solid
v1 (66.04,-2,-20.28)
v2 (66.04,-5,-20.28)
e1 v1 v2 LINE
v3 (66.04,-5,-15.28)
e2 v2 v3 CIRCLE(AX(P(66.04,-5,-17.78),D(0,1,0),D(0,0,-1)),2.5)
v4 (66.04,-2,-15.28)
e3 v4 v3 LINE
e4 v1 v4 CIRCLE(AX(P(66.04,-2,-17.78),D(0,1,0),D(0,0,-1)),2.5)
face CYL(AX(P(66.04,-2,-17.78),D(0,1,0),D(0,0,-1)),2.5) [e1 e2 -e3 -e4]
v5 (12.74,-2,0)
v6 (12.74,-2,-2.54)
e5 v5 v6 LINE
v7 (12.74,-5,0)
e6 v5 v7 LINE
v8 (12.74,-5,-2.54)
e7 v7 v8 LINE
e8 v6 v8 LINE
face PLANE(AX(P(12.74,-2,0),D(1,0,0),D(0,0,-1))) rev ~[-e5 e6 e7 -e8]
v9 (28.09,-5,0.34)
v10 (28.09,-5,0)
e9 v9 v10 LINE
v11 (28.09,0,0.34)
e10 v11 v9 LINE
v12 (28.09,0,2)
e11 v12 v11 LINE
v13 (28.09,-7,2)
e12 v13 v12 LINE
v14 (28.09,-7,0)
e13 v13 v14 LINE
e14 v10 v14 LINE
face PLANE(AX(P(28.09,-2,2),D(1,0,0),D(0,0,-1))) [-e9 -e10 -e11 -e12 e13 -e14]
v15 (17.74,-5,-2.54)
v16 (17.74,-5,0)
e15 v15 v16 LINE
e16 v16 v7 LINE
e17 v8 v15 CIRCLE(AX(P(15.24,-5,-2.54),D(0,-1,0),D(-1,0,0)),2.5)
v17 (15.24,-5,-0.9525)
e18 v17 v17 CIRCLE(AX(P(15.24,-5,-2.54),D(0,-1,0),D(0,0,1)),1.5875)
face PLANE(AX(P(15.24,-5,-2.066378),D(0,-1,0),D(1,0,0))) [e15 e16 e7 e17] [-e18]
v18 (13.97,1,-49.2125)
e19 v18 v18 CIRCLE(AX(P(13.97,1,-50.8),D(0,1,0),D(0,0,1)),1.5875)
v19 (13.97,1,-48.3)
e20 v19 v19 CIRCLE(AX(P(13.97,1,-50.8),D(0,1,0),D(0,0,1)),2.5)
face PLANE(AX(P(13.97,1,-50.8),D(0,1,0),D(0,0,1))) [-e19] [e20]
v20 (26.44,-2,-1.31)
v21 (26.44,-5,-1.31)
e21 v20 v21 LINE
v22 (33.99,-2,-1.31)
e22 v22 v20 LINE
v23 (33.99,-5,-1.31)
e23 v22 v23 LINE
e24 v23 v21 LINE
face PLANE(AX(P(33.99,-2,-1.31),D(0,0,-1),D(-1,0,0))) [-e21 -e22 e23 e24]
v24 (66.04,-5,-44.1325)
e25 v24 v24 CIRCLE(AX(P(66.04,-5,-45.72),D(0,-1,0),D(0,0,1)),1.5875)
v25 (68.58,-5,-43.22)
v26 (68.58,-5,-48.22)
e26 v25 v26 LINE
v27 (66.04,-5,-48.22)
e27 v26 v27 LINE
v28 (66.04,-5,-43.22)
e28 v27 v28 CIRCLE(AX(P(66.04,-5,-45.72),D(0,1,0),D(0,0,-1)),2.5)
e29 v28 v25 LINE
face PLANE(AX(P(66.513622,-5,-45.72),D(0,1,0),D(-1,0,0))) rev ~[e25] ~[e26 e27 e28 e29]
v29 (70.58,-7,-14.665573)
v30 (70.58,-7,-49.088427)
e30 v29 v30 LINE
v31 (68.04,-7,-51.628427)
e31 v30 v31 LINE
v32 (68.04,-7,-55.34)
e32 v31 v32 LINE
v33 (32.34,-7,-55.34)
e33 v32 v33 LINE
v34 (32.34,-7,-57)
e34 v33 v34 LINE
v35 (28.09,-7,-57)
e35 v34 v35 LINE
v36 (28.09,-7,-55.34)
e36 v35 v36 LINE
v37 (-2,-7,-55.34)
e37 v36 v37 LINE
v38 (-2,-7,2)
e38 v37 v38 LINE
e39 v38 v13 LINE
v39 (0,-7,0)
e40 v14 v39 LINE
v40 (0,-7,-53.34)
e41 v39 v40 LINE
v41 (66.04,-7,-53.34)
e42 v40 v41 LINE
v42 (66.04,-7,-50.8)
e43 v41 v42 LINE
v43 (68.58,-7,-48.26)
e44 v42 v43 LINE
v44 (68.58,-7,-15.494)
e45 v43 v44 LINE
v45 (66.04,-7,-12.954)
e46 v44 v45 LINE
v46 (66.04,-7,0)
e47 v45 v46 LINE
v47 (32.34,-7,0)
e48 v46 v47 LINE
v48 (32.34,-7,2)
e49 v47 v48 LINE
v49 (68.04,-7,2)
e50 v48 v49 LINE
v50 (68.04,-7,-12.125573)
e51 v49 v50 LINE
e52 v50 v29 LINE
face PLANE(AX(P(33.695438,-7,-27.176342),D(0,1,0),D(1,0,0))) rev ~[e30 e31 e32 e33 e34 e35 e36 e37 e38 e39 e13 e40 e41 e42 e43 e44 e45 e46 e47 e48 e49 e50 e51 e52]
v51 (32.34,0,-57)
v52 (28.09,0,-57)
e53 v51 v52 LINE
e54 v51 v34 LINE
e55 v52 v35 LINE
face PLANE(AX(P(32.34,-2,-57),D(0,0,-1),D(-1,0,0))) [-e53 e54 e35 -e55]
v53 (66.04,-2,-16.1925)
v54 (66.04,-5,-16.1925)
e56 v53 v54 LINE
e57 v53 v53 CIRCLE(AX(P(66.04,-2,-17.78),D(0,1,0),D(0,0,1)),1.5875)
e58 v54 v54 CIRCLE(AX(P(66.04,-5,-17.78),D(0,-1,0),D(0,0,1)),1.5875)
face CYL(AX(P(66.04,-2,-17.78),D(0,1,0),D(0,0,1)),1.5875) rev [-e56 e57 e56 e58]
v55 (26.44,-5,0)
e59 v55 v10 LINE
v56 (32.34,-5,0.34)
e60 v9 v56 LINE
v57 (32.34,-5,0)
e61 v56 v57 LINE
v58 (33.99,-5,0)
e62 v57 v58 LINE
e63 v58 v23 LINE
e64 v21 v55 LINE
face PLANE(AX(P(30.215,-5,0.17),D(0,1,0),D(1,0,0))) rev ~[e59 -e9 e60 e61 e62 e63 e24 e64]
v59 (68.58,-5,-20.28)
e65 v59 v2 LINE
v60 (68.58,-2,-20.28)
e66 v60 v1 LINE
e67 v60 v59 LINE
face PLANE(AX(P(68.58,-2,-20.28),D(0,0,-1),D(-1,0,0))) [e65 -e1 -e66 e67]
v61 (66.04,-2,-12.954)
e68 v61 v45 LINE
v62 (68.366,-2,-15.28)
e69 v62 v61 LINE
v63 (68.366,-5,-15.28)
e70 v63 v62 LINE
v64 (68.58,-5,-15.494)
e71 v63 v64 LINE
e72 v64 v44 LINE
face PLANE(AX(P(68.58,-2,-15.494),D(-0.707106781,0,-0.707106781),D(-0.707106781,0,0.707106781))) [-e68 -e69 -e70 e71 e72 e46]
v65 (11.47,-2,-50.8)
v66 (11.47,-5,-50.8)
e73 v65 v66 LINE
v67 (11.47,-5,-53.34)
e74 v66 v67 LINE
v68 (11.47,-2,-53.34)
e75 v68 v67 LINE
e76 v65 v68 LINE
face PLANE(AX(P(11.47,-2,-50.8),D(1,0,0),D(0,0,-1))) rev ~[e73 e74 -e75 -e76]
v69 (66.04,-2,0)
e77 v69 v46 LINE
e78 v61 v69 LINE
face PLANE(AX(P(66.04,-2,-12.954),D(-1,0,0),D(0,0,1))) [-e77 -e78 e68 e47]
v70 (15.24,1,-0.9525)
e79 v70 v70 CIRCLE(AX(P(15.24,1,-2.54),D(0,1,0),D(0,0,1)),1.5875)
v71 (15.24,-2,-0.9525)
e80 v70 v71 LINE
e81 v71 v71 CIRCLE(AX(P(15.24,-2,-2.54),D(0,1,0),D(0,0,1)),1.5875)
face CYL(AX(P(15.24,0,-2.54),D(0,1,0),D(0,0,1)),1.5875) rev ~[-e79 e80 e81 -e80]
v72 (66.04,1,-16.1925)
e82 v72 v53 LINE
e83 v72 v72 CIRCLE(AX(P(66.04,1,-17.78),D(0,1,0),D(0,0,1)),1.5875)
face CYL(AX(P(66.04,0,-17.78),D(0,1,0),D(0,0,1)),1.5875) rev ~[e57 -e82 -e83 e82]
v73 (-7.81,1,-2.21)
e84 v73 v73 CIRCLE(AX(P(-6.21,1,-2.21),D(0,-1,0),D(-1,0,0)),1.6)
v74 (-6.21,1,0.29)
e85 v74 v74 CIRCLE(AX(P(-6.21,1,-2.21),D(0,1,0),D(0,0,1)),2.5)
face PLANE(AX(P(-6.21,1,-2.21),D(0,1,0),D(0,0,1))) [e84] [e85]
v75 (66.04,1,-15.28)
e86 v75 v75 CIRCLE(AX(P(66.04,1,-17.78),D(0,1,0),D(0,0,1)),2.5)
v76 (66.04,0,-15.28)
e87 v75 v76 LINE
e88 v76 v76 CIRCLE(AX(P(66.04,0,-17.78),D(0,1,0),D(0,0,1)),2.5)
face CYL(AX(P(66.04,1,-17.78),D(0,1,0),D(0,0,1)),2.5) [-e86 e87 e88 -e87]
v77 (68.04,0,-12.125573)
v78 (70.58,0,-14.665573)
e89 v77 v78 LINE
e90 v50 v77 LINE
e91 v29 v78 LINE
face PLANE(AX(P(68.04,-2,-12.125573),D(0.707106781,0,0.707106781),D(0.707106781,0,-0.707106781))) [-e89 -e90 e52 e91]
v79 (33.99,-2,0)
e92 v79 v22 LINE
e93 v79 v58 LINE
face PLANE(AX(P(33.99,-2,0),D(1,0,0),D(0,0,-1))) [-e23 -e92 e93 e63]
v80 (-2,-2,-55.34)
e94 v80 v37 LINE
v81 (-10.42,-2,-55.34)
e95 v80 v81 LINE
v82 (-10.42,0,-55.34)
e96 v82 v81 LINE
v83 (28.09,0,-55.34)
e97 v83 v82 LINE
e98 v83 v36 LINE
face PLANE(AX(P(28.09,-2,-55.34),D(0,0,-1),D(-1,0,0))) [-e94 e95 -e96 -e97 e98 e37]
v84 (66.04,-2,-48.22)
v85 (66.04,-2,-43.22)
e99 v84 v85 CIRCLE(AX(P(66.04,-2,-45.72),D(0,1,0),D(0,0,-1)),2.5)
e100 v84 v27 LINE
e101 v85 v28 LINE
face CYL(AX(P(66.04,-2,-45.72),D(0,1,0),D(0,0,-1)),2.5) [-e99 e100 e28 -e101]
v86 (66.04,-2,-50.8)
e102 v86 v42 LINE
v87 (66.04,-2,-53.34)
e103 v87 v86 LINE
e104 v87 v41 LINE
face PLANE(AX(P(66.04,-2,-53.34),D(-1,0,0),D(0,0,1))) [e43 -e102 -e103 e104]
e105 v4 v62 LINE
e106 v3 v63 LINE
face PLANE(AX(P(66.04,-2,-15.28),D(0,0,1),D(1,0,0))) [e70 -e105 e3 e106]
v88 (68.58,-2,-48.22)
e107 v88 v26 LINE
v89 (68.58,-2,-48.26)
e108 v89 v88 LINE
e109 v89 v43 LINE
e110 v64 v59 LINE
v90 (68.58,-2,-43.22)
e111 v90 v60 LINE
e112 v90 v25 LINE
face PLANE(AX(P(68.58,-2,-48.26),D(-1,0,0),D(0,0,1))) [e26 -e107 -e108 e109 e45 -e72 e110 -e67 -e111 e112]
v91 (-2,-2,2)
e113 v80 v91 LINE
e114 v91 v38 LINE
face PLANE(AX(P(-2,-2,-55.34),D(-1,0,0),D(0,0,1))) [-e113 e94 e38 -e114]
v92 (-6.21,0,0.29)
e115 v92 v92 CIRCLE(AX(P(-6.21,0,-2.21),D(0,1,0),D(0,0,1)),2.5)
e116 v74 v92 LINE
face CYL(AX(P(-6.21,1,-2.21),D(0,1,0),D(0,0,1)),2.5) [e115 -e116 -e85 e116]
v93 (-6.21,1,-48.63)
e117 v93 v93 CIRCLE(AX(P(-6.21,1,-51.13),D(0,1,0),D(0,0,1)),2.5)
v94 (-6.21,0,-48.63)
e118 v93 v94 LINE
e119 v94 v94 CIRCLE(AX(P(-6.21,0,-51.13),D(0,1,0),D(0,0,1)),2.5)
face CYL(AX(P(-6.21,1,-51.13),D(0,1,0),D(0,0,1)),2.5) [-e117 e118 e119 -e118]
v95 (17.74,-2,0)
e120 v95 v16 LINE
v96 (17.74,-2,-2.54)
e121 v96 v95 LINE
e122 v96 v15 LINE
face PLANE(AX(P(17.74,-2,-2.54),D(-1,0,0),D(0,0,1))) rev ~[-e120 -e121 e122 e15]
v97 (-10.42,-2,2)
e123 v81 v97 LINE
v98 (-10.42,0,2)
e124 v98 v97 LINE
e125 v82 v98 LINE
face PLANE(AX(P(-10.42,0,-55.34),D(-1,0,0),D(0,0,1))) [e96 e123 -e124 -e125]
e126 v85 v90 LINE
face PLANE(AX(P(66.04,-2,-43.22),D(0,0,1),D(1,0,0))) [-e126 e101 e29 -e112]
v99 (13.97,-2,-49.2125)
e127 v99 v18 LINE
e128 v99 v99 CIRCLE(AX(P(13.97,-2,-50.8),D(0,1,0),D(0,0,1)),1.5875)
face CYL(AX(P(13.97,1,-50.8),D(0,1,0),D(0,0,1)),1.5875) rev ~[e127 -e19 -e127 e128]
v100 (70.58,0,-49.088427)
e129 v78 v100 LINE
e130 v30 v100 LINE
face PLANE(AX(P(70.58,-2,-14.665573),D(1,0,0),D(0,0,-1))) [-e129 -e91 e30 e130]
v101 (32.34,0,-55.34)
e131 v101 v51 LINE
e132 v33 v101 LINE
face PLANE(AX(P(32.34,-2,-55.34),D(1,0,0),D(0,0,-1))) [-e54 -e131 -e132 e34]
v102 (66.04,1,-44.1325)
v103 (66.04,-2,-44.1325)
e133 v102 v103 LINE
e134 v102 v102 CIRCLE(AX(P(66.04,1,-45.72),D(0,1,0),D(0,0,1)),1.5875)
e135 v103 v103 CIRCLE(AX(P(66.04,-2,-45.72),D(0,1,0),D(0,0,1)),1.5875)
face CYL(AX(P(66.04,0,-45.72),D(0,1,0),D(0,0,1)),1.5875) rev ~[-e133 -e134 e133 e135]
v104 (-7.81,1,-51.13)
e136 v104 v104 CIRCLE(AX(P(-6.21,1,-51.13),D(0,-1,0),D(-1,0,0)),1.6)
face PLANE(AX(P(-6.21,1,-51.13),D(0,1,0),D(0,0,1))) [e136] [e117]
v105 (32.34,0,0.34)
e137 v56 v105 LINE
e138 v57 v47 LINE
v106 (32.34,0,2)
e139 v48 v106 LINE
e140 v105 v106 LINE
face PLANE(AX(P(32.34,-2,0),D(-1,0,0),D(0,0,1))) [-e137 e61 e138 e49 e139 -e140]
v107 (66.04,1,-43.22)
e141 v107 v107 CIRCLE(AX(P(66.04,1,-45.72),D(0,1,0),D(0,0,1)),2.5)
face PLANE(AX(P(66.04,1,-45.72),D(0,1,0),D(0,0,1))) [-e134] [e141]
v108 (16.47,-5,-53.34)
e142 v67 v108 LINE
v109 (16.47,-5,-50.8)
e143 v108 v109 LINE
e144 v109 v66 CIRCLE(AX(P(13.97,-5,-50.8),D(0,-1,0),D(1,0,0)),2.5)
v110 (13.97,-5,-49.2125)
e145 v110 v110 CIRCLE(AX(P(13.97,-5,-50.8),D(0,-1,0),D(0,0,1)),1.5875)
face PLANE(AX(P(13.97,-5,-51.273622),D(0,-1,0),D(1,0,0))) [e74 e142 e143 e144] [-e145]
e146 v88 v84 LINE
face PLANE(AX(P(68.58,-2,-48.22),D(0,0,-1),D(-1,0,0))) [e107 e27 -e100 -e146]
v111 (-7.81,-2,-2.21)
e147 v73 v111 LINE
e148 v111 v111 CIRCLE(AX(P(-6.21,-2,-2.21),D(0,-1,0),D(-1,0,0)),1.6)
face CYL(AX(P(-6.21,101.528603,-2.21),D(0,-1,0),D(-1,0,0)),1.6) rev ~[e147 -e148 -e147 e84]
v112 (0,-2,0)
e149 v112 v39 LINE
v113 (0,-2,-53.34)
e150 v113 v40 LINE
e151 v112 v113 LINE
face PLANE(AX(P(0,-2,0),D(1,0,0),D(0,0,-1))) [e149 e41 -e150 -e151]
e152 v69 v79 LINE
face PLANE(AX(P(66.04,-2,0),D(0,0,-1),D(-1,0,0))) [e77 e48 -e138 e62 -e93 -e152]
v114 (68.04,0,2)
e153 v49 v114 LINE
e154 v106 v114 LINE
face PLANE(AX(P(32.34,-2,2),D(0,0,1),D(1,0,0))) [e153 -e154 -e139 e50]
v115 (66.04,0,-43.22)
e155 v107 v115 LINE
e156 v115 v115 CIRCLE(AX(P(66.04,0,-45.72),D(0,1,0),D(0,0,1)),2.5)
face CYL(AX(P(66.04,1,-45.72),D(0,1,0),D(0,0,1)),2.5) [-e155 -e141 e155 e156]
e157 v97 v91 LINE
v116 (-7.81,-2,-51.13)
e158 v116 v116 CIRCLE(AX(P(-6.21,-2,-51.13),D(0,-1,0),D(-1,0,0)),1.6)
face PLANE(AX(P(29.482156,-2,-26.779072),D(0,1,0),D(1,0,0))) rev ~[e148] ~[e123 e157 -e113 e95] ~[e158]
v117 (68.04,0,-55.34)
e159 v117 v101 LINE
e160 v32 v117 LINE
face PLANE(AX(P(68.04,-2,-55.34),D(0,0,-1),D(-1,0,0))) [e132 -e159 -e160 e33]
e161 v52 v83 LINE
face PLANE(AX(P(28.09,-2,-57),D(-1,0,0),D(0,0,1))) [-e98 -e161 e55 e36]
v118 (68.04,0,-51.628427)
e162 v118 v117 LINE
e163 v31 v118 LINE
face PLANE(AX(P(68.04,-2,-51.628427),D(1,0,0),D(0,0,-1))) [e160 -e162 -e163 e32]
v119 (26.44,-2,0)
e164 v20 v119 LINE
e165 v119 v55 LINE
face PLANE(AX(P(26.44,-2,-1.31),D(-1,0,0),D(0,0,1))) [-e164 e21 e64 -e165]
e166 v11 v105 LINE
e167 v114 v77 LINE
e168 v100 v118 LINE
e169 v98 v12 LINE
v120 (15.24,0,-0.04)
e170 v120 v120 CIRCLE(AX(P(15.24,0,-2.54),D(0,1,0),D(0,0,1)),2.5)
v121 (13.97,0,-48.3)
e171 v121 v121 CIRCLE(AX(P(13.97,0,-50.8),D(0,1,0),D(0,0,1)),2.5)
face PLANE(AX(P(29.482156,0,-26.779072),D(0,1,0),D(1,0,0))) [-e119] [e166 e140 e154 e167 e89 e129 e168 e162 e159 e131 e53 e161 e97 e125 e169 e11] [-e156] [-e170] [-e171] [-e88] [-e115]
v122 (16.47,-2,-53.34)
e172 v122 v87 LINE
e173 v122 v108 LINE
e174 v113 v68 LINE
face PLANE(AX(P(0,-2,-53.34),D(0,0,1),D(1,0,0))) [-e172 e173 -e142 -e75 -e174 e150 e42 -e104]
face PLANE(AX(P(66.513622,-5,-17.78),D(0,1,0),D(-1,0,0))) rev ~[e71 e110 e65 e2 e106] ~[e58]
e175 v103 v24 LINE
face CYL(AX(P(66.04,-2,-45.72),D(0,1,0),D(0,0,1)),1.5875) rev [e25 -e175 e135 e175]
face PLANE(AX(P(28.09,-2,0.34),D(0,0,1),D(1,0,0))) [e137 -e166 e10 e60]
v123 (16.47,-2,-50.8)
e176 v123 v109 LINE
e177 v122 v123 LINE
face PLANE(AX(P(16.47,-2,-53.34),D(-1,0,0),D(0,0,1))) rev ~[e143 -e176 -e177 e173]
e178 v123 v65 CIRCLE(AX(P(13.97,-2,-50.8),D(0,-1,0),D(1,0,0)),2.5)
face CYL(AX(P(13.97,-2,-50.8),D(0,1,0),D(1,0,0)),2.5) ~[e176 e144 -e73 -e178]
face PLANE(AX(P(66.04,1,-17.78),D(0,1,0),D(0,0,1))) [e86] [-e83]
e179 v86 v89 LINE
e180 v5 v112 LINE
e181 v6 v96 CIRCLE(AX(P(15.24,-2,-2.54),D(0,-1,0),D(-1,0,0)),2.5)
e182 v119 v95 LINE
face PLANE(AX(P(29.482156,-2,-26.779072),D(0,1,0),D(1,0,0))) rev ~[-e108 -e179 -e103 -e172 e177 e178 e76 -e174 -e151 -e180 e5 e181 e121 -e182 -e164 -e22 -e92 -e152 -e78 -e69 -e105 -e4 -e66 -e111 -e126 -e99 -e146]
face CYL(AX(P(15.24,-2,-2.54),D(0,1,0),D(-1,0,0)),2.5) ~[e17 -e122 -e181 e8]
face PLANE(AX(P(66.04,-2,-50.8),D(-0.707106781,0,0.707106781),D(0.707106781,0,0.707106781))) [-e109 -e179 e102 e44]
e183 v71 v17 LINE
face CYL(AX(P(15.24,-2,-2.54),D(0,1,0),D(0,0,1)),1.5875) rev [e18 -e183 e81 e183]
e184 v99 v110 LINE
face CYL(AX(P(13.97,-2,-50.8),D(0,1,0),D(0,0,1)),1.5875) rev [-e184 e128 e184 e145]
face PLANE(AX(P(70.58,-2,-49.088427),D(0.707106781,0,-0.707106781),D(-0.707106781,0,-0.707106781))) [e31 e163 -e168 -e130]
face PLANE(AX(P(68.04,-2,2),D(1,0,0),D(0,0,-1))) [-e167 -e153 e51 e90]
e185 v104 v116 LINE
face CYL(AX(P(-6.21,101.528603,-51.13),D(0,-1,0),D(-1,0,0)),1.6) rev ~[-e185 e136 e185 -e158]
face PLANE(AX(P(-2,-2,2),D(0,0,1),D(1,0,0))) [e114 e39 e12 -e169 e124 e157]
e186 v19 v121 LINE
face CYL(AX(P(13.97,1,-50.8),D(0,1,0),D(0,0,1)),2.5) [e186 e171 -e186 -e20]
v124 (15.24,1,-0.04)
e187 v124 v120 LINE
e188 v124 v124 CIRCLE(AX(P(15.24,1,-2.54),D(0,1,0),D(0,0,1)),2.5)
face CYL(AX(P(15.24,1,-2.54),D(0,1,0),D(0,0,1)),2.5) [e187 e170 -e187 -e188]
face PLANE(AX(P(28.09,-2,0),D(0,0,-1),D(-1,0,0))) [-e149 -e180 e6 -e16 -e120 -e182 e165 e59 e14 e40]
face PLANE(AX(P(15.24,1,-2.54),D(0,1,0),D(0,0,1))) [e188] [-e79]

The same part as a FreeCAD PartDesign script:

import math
import FreeCAD as App
import Part
import Sketcher

V = App.Vector

doc = App.newDocument("Part")
body = doc.addObject("PartDesign::Body", "Body")

# Sketch on XZ plane
sketch1 = doc.addObject("Sketcher::SketchObject", "Sketch")
body.addObject(sketch1)
sketch1.AttachmentSupport = (doc.XZ_Plane, [""])
sketch1.MapMode = "FlatFace"
sketch1.addGeometry([
    Part.LineSegment(V(-10.4, -55.3, 0), V(-10.4, 2, 0)),  # 0
    Part.LineSegment(V(-10.4, 2, 0), V(28.1, 2, 0)),  # 1
    Part.LineSegment(V(28.1, 2, 0), V(28.1, 0.3, 0)),  # 2
    Part.LineSegment(V(28.1, 0.3, 0), V(32.3, 0.3, 0)),  # 3
    Part.LineSegment(V(32.3, 0.3, 0), V(32.3, 2, 0)),  # 4
    Part.LineSegment(V(32.3, 2, 0), V(68, 2, 0)),  # 5
    Part.LineSegment(V(68, 2, 0), V(68, -12.1, 0)),  # 6
    Part.LineSegment(V(68, -12.1, 0), V(70.6, -14.7, 0)),  # 7
    Part.LineSegment(V(70.6, -14.7, 0), V(70.6, -49.1, 0)),  # 8
    Part.LineSegment(V(70.6, -49.1, 0), V(68, -51.6, 0)),  # 9
    Part.LineSegment(V(68, -51.6, 0), V(68, -55.3, 0)),  # 10
    Part.LineSegment(V(68, -55.3, 0), V(32.3, -55.3, 0)),  # 11
    Part.LineSegment(V(32.3, -55.3, 0), V(32.3, -57, 0)),  # 12
    Part.LineSegment(V(32.3, -57, 0), V(28.1, -57, 0)),  # 13
    Part.LineSegment(V(28.1, -57, 0), V(28.1, -55.3, 0)),  # 14
    Part.LineSegment(V(28.1, -55.3, 0), V(-10.4, -55.3, 0)),  # 15
    Part.Circle(V(15.2, -2.5, 0), V(0, 0, 1), 1.6),  # 16
    Part.Circle(V(66, -17.8, 0), V(0, 0, 1), 1.6),  # 17
    Part.Circle(V(14, -50.8, 0), V(0, 0, 1), 1.6),  # 18
    Part.Circle(V(66, -45.7, 0), V(0, 0, 1), 1.6),  # 19
], False)
sketch1.addConstraint([
    Sketcher.Constraint("Coincident", 0, 2, 1, 1),
    Sketcher.Constraint("Coincident", 1, 2, 2, 1),
    Sketcher.Constraint("Coincident", 2, 2, 3, 1),
    Sketcher.Constraint("Coincident", 3, 2, 4, 1),
    Sketcher.Constraint("Coincident", 4, 2, 5, 1),
    Sketcher.Constraint("Coincident", 5, 2, 6, 1),
    Sketcher.Constraint("Coincident", 6, 2, 7, 1),
    Sketcher.Constraint("Coincident", 7, 2, 8, 1),
    Sketcher.Constraint("Coincident", 8, 2, 9, 1),
    Sketcher.Constraint("Coincident", 9, 2, 10, 1),
    Sketcher.Constraint("Coincident", 10, 2, 11, 1),
    Sketcher.Constraint("Coincident", 11, 2, 12, 1),
    Sketcher.Constraint("Coincident", 12, 2, 13, 1),
    Sketcher.Constraint("Coincident", 13, 2, 14, 1),
    Sketcher.Constraint("Coincident", 14, 2, 15, 1),
    Sketcher.Constraint("Coincident", 15, 2, 0, 1),
    Sketcher.Constraint("Vertical", 0),
    Sketcher.Constraint("Horizontal", 1),
    Sketcher.Constraint("Vertical", 2),
    Sketcher.Constraint("Horizontal", 3),
    Sketcher.Constraint("Vertical", 4),
    Sketcher.Constraint("Horizontal", 5),
    Sketcher.Constraint("Vertical", 6),
    Sketcher.Constraint("Vertical", 8),
    Sketcher.Constraint("Vertical", 10),
    Sketcher.Constraint("Horizontal", 11),
    Sketcher.Constraint("Vertical", 12),
    Sketcher.Constraint("Horizontal", 13),
    Sketcher.Constraint("Vertical", 14),
    Sketcher.Constraint("Horizontal", 15),
    Sketcher.Constraint("Equal", 16, 17),
    Sketcher.Constraint("Equal", 17, 18),
    Sketcher.Constraint("Equal", 18, 19),
    Sketcher.Constraint("Perpendicular", 7, 9),
    Sketcher.Constraint("Horizontal", 1, 2, 4, 2),
    Sketcher.Constraint("Horizontal", 11, 2, 14, 2),
    Sketcher.Constraint("Vertical", 17, 3, 19, 3),
    Sketcher.Constraint("Vertical", 6, 2, 9, 2),
    Sketcher.Constraint("Vertical", 4, 2, 11, 2),
    Sketcher.Constraint("Vertical", 2, 2, 13, 2),
    Sketcher.Constraint("Equal", 4, 12),
    Sketcher.Constraint("Equal", 7, 9),
    Sketcher.Constraint("Diameter", 16, 3.175),
    Sketcher.Constraint("DistanceX", 5, 1, 5, 2, 35.7),
    Sketcher.Constraint("DistanceY", -1, 1, 0, 2, 2.0),
    Sketcher.Constraint("DistanceY", 12, 2, -1, 1, 57.0),
    Sketcher.Constraint("DistanceX", 17, 3, 5, 2, 2.0),
    Sketcher.Constraint("DistanceX", 1, 1, 1, 2, 38.51),
    Sketcher.Constraint("DistanceX", 3, 1, 3, 2, 4.25),
    Sketcher.Constraint("DistanceY", 0, 1, 0, 2, 57.34),
    Sketcher.Constraint("DistanceY", 18, 3, -1, 1, 50.8),
    Sketcher.Constraint("DistanceX", 16, 3, 17, 3, 50.8),
    Sketcher.Constraint("DistanceX", -1, 1, 16, 3, 15.24),
    Sketcher.Constraint("DistanceY", 16, 3, -1, 1, 2.54),
    Sketcher.Constraint("DistanceY", 17, 3, -1, 1, 17.78),
    Sketcher.Constraint("DistanceX", -1, 1, 18, 3, 13.97),
    Sketcher.Constraint("DistanceY", 19, 3, -1, 1, 45.72),
    Sketcher.Constraint("DistanceX", -1, 1, 7, 2, 70.58),
    Sketcher.Constraint("DistanceY", 6, 2, 6, 1, 14.125573),
    Sketcher.Constraint("DistanceY", 8, 2, 8, 1, 34.422854),
])
pad1 = doc.addObject("PartDesign::Pad", "Pad")
body.addObject(pad1)
pad1.Profile = sketch1
pad1.Length = 2

# Sketch on XZ plane
sketch2 = doc.addObject("Sketcher::SketchObject", "Sketch001")
body.addObject(sketch2)
sketch2.AttachmentSupport = (doc.XZ_Plane, [""])
sketch2.MapMode = "FlatFace"
sketch2.AttachmentOffset = App.Placement(V(0, 0, 2), App.Rotation())
sketch2.addGeometry([
    Part.LineSegment(V(28.1, -55.3, 0), V(-2, -55.3, 0)),  # 0
    Part.LineSegment(V(-2, -55.3, 0), V(-2, 2, 0)),  # 1
    Part.LineSegment(V(-2, 2, 0), V(28.1, 2, 0)),  # 2
    Part.LineSegment(V(28.1, 2, 0), V(28.1, 0, 0)),  # 3
    Part.LineSegment(V(28.1, 0, 0), V(0, 0, 0)),  # 4
    Part.LineSegment(V(0, 0, 0), V(0, -53.3, 0)),  # 5
    Part.LineSegment(V(0, -53.3, 0), V(66, -53.3, 0)),  # 6
    Part.LineSegment(V(66, -53.3, 0), V(66, -50.8, 0)),  # 7
    Part.LineSegment(V(66, -50.8, 0), V(68.6, -48.3, 0)),  # 8
    Part.LineSegment(V(68.6, -48.3, 0), V(68.6, -15.5, 0)),  # 9
    Part.LineSegment(V(68.6, -15.5, 0), V(66, -13, 0)),  # 10
    Part.LineSegment(V(66, -13, 0), V(66, 0, 0)),  # 11
    Part.LineSegment(V(66, 0, 0), V(32.3, 0, 0)),  # 12
    Part.LineSegment(V(32.3, 0, 0), V(32.3, 2, 0)),  # 13
    Part.LineSegment(V(32.3, 2, 0), V(68, 2, 0)),  # 14
    Part.LineSegment(V(68, 2, 0), V(68, -12.1, 0)),  # 15
    Part.LineSegment(V(68, -12.1, 0), V(70.6, -14.7, 0)),  # 16
    Part.LineSegment(V(70.6, -14.7, 0), V(70.6, -49.1, 0)),  # 17
    Part.LineSegment(V(70.6, -49.1, 0), V(68, -51.6, 0)),  # 18
    Part.LineSegment(V(68, -51.6, 0), V(68, -55.3, 0)),  # 19
    Part.LineSegment(V(68, -55.3, 0), V(32.3, -55.3, 0)),  # 20
    Part.LineSegment(V(32.3, -55.3, 0), V(32.3, -57, 0)),  # 21
    Part.LineSegment(V(32.3, -57, 0), V(28.1, -57, 0)),  # 22
    Part.LineSegment(V(28.1, -57, 0), V(28.1, -55.3, 0)),  # 23
], False)
sketch2.addConstraint([
    Sketcher.Constraint("Coincident", 0, 2, 1, 1),
    Sketcher.Constraint("Coincident", 1, 2, 2, 1),
    Sketcher.Constraint("Coincident", 2, 2, 3, 1),
    Sketcher.Constraint("Coincident", 3, 2, 4, 1),
    Sketcher.Constraint("Coincident", 4, 2, 5, 1),
    Sketcher.Constraint("Coincident", 5, 2, 6, 1),
    Sketcher.Constraint("Coincident", 6, 2, 7, 1),
    Sketcher.Constraint("Coincident", 7, 2, 8, 1),
    Sketcher.Constraint("Coincident", 8, 2, 9, 1),
    Sketcher.Constraint("Coincident", 9, 2, 10, 1),
    Sketcher.Constraint("Coincident", 10, 2, 11, 1),
    Sketcher.Constraint("Coincident", 11, 2, 12, 1),
    Sketcher.Constraint("Coincident", 12, 2, 13, 1),
    Sketcher.Constraint("Coincident", 13, 2, 14, 1),
    Sketcher.Constraint("Coincident", 14, 2, 15, 1),
    Sketcher.Constraint("Coincident", 15, 2, 16, 1),
    Sketcher.Constraint("Coincident", 16, 2, 17, 1),
    Sketcher.Constraint("Coincident", 17, 2, 18, 1),
    Sketcher.Constraint("Coincident", 18, 2, 19, 1),
    Sketcher.Constraint("Coincident", 19, 2, 20, 1),
    Sketcher.Constraint("Coincident", 20, 2, 21, 1),
    Sketcher.Constraint("Coincident", 21, 2, 22, 1),
    Sketcher.Constraint("Coincident", 22, 2, 23, 1),
    Sketcher.Constraint("Coincident", 23, 2, 0, 1),
    Sketcher.Constraint("Horizontal", 0),
    Sketcher.Constraint("Vertical", 1),
    Sketcher.Constraint("Horizontal", 2),
    Sketcher.Constraint("Vertical", 3),
    Sketcher.Constraint("Horizontal", 4),
    Sketcher.Constraint("Vertical", 5),
    Sketcher.Constraint("Horizontal", 6),
    Sketcher.Constraint("Vertical", 7),
    Sketcher.Constraint("Vertical", 9),
    Sketcher.Constraint("Vertical", 11),
    Sketcher.Constraint("Horizontal", 12),
    Sketcher.Constraint("Vertical", 13),
    Sketcher.Constraint("Horizontal", 14),
    Sketcher.Constraint("Vertical", 15),
    Sketcher.Constraint("Vertical", 17),
    Sketcher.Constraint("Vertical", 19),
    Sketcher.Constraint("Horizontal", 20),
    Sketcher.Constraint("Vertical", 21),
    Sketcher.Constraint("Horizontal", 22),
    Sketcher.Constraint("Vertical", 23),
    Sketcher.Constraint("Coincident", 4, 2, -1, 1),
    Sketcher.Constraint("PointOnObject", 11, 2, -1),
    Sketcher.Constraint("Perpendicular", 8, 10),
    Sketcher.Constraint("Parallel", 10, 16),
    Sketcher.Constraint("Perpendicular", 16, 18),
    Sketcher.Constraint("Horizontal", 2, 2, 13, 2),
    Sketcher.Constraint("Horizontal", 0, 2, 19, 2),
    Sketcher.Constraint("Vertical", 7, 2, 10, 2),
    Sketcher.Constraint("Vertical", 15, 2, 18, 2),
    Sketcher.Constraint("Vertical", 13, 2, 20, 2),
    Sketcher.Constraint("Vertical", 3, 2, 22, 2),
    Sketcher.Constraint("Equal", 8, 10),
    Sketcher.Constraint("Equal", 10, 16),
    Sketcher.Constraint("DistanceY", 3, 2, 3, 1, 2.0),
    Sketcher.Constraint("DistanceX", 12, 2, 12, 1, 33.7),
    Sketcher.Constraint("DistanceX", 14, 1, 14, 2, 35.7),
    Sketcher.Constraint("DistanceX", 0, 2, -1, 1, 2.0),
    Sketcher.Constraint("DistanceY", 21, 2, -1, 1, 57.0),
    Sketcher.Constraint("DistanceY", 0, 2, 5, 2, 2.0),
    Sketcher.Constraint("DistanceX", 0, 2, 0, 1, 30.09),
    Sketcher.Constraint("DistanceX", 6, 1, 6, 2, 66.04),
    Sketcher.Constraint("DistanceY", 1, 1, 1, 2, 57.34),
    Sketcher.Constraint("DistanceY", 7, 1, 7, 2, 2.54),
    Sketcher.Constraint("DistanceY", 9, 1, 9, 2, 32.766),
    Sketcher.Constraint("DistanceY", 11, 1, 11, 2, 12.954),
    Sketcher.Constraint("DistanceY", 15, 2, 15, 1, 14.125573),
    Sketcher.Constraint("DistanceY", 17, 2, 17, 1, 34.422854),
])
pad2 = doc.addObject("PartDesign::Pad", "Pad001")
body.addObject(pad2)
pad2.Profile = sketch2
pad2.Length = 5

# Sketch on XZ plane
sketch3 = doc.addObject("Sketcher::SketchObject", "Sketch002")
body.addObject(sketch3)
sketch3.AttachmentSupport = (doc.XZ_Plane, [""])
sketch3.MapMode = "FlatFace"
sketch3.AttachmentOffset = App.Placement(V(0, 0, -1), App.Rotation())
sketch3.addGeometry([
    Part.Circle(V(14, -50.8, 0), V(0, 0, 1), 2.5),  # 0
    Part.Circle(V(14, -50.8, 0), V(0, 0, 1), 1.6),  # 1
    Part.Circle(V(66, -45.7, 0), V(0, 0, 1), 2.5),  # 2
    Part.Circle(V(66, -45.7, 0), V(0, 0, 1), 1.6),  # 3
    Part.Circle(V(66, -17.8, 0), V(0, 0, 1), 2.5),  # 4
    Part.Circle(V(66, -17.8, 0), V(0, 0, 1), 1.6),  # 5
    Part.Circle(V(15.2, -2.5, 0), V(0, 0, 1), 2.5),  # 6
    Part.Circle(V(15.2, -2.5, 0), V(0, 0, 1), 1.6),  # 7
    Part.Circle(V(-6.2, -2.2, 0), V(0, 0, 1), 2.5),  # 8
    Part.Circle(V(-6.2, -51.1, 0), V(0, 0, 1), 2.5),  # 9
], False)
sketch3.addConstraint([
    Sketcher.Constraint("Coincident", 1, 3, 0, 3),
    Sketcher.Constraint("Coincident", 3, 3, 2, 3),
    Sketcher.Constraint("Coincident", 5, 3, 4, 3),
    Sketcher.Constraint("Coincident", 7, 3, 6, 3),
    Sketcher.Constraint("Equal", 0, 2),
    Sketcher.Constraint("Equal", 1, 3),
    Sketcher.Constraint("Equal", 2, 4),
    Sketcher.Constraint("Equal", 3, 5),
    Sketcher.Constraint("Equal", 4, 6),
    Sketcher.Constraint("Equal", 5, 7),
    Sketcher.Constraint("Equal", 6, 8),
    Sketcher.Constraint("Equal", 8, 9),
    Sketcher.Constraint("Vertical", 3, 3, 4, 3),
    Sketcher.Constraint("Vertical", 8, 3, 9, 3),
    Sketcher.Constraint("Diameter", 0, 5.0),
    Sketcher.Constraint("Diameter", 1, 3.175),
    Sketcher.Constraint("DistanceY", 0, 3, -1, 1, 50.8),
    Sketcher.Constraint("DistanceX", 6, 3, 4, 3, 50.8),
    Sketcher.Constraint("DistanceX", -1, 1, 0, 3, 13.97),
    Sketcher.Constraint("DistanceX", -1, 1, 2, 3, 66.04),
    Sketcher.Constraint("DistanceY", 2, 3, -1, 1, 45.72),
    Sketcher.Constraint("DistanceY", 4, 3, -1, 1, 17.78),
    Sketcher.Constraint("DistanceY", 6, 3, -1, 1, 2.54),
    Sketcher.Constraint("DistanceX", 8, 3, -1, 1, 6.21),
    Sketcher.Constraint("DistanceY", 8, 3, -1, 1, 2.21),
    Sketcher.Constraint("DistanceY", 9, 3, -1, 1, 51.13),
])
pad3 = doc.addObject("PartDesign::Pad", "Pad002")
body.addObject(pad3)
pad3.Profile = sketch3
pad3.Length = 1

# Sketch on XZ plane
sketch4 = doc.addObject("Sketcher::SketchObject", "Sketch003")
body.addObject(sketch4)
sketch4.AttachmentSupport = (doc.XZ_Plane, [""])
sketch4.MapMode = "FlatFace"
sketch4.AttachmentOffset = App.Placement(V(0, 0, 2), App.Rotation())
sketch4.addGeometry([
    Part.LineSegment(V(28.09, 0, 0), V(28.09, 0.34, 0)),  # 0
    Part.LineSegment(V(28.09, 0.34, 0), V(32.34, 0.34, 0)),  # 1
    Part.LineSegment(V(32.34, 0.34, 0), V(32.34, 0, 0)),  # 2
    Part.LineSegment(V(32.34, 0, 0), V(33.99, 0, 0)),  # 3
    Part.LineSegment(V(33.99, 0, 0), V(33.99, -1.31, 0)),  # 4
    Part.LineSegment(V(33.99, -1.31, 0), V(26.44, -1.31, 0)),  # 5
    Part.LineSegment(V(26.44, -1.31, 0), V(26.44, 0, 0)),  # 6
    Part.LineSegment(V(26.44, 0, 0), V(28.09, 0, 0)),  # 7
], False)
sketch4.addConstraint([
    Sketcher.Constraint("Coincident", 0, 2, 1, 1),
    Sketcher.Constraint("Coincident", 1, 2, 2, 1),
    Sketcher.Constraint("Coincident", 2, 2, 3, 1),
    Sketcher.Constraint("Coincident", 3, 2, 4, 1),
    Sketcher.Constraint("Coincident", 4, 2, 5, 1),
    Sketcher.Constraint("Coincident", 5, 2, 6, 1),
    Sketcher.Constraint("Coincident", 6, 2, 7, 1),
    Sketcher.Constraint("Coincident", 7, 2, 0, 1),
    Sketcher.Constraint("Vertical", 0),
    Sketcher.Constraint("Horizontal", 1),
    Sketcher.Constraint("Vertical", 2),
    Sketcher.Constraint("Horizontal", 3),
    Sketcher.Constraint("Vertical", 4),
    Sketcher.Constraint("Horizontal", 5),
    Sketcher.Constraint("Vertical", 6),
    Sketcher.Constraint("Horizontal", 7),
    Sketcher.Constraint("PointOnObject", 2, 2, -1),
    Sketcher.Constraint("PointOnObject", 6, 2, -1),
    Sketcher.Constraint("Equal", 3, 7),
    Sketcher.Constraint("DistanceX", 1, 1, 1, 2, 4.25),
    Sketcher.Constraint("DistanceX", 3, 1, 3, 2, 1.65),
    Sketcher.Constraint("DistanceY", 0, 1, 0, 2, 0.34),
    Sketcher.Constraint("DistanceY", 4, 2, 4, 1, 1.31),
    Sketcher.Constraint("DistanceX", -1, 1, 0, 2, 28.09),
])
pad4 = doc.addObject("PartDesign::Pad", "Pad003")
body.addObject(pad4)
pad4.Profile = sketch4
pad4.Length = 3

# Sketch on XZ plane
sketch5 = doc.addObject("Sketcher::SketchObject", "Sketch004")
body.addObject(sketch5)
sketch5.AttachmentSupport = (doc.XZ_Plane, [""])
sketch5.MapMode = "FlatFace"
sketch5.AttachmentOffset = App.Placement(V(0, 0, 2), App.Rotation())
sketch5.addGeometry([
    Part.LineSegment(V(12.7, 0, 0), V(12.7, -2.5, 0)),  # 0
    Part.ArcOfCircle(Part.Circle(V(15.2, -2.5, 0), V(0, 0, 1), 2.5), math.radians(180), math.radians(360)),  # 1
    Part.LineSegment(V(17.7, -2.5, 0), V(17.7, 0, 0)),  # 2
    Part.LineSegment(V(17.7, 0, 0), V(12.7, 0, 0)),  # 3
    Part.Circle(V(15.2, -2.5, 0), V(0, 0, 1), 1.6),  # 4
    Part.LineSegment(V(16.5, -53.3, 0), V(16.5, -50.8, 0)),  # 5
    Part.ArcOfCircle(Part.Circle(V(14, -50.8, 0), V(0, 0, 1), 2.5), math.radians(0), math.radians(180)),  # 6
    Part.LineSegment(V(11.5, -50.8, 0), V(11.5, -53.3, 0)),  # 7
    Part.LineSegment(V(11.5, -53.3, 0), V(16.5, -53.3, 0)),  # 8
    Part.Circle(V(14, -50.8, 0), V(0, 0, 1), 1.6),  # 9
    Part.LineSegment(V(66, -48.2, 0), V(68.6, -48.2, 0)),  # 10
    Part.LineSegment(V(68.6, -48.2, 0), V(68.6, -43.2, 0)),  # 11
    Part.LineSegment(V(68.6, -43.2, 0), V(66, -43.2, 0)),  # 12
    Part.ArcOfCircle(Part.Circle(V(66, -45.7, 0), V(0, 0, 1), 2.5), math.radians(90), math.radians(270)),  # 13
    Part.Circle(V(66, -45.7, 0), V(0, 0, 1), 1.6),  # 14
    Part.LineSegment(V(66, -20.3, 0), V(68.6, -20.3, 0)),  # 15
    Part.LineSegment(V(68.6, -20.3, 0), V(68.6, -15.3, 0)),  # 16
    Part.LineSegment(V(68.6, -15.3, 0), V(66, -15.3, 0)),  # 17
    Part.ArcOfCircle(Part.Circle(V(66, -17.8, 0), V(0, 0, 1), 2.5), math.radians(90), math.radians(270)),  # 18
    Part.Circle(V(66, -17.8, 0), V(0, 0, 1), 1.6),  # 19
], False)
sketch5.addConstraint([
    Sketcher.Constraint("Tangent", 0, 2, 1, 1),
    Sketcher.Constraint("Tangent", 1, 2, 2, 1),
    Sketcher.Constraint("Coincident", 2, 2, 3, 1),
    Sketcher.Constraint("Coincident", 3, 2, 0, 1),
    Sketcher.Constraint("Tangent", 5, 2, 6, 1),
    Sketcher.Constraint("Tangent", 6, 2, 7, 1),
    Sketcher.Constraint("Coincident", 7, 2, 8, 1),
    Sketcher.Constraint("Coincident", 8, 2, 5, 1),
    Sketcher.Constraint("Coincident", 10, 2, 11, 1),
    Sketcher.Constraint("Coincident", 11, 2, 12, 1),
    Sketcher.Constraint("Tangent", 12, 2, 13, 1),
    Sketcher.Constraint("Tangent", 13, 2, 10, 1),
    Sketcher.Constraint("Coincident", 15, 2, 16, 1),
    Sketcher.Constraint("Coincident", 16, 2, 17, 1),
    Sketcher.Constraint("Tangent", 17, 2, 18, 1),
    Sketcher.Constraint("Tangent", 18, 2, 15, 1),
    Sketcher.Constraint("Vertical", 0),
    Sketcher.Constraint("Vertical", 2),
    Sketcher.Constraint("Horizontal", 3),
    Sketcher.Constraint("Vertical", 5),
    Sketcher.Constraint("Vertical", 7),
    Sketcher.Constraint("Horizontal", 8),
    Sketcher.Constraint("Horizontal", 10),
    Sketcher.Constraint("Vertical", 11),
    Sketcher.Constraint("Horizontal", 12),
    Sketcher.Constraint("Horizontal", 15),
    Sketcher.Constraint("Vertical", 16),
    Sketcher.Constraint("Horizontal", 17),
    Sketcher.Constraint("Coincident", 4, 3, 1, 3),
    Sketcher.Constraint("Coincident", 9, 3, 6, 3),
    Sketcher.Constraint("Coincident", 14, 3, 13, 3),
    Sketcher.Constraint("Coincident", 19, 3, 18, 3),
    Sketcher.Constraint("Equal", 1, 6),
    Sketcher.Constraint("Equal", 4, 9),
    Sketcher.Constraint("Equal", 6, 13),
    Sketcher.Constraint("Equal", 9, 14),
    Sketcher.Constraint("Equal", 13, 18),
    Sketcher.Constraint("Equal", 14, 19),
    Sketcher.Constraint("PointOnObject", 2, 2, -1),
    Sketcher.Constraint("Vertical", 14, 3, 18, 3),
    Sketcher.Constraint("Vertical", 11, 2, 15, 2),
    Sketcher.Constraint("Equal", 17, 0),
    Sketcher.Constraint("Equal", 2, 5),
    Sketcher.Constraint("Radius", 1, 2.5),
    Sketcher.Constraint("Diameter", 4, 3.175),
    Sketcher.Constraint("DistanceX", 10, 1, 10, 2, 2.54),
    Sketcher.Constraint("DistanceY", 6, 3, -1, 1, 50.8),
    Sketcher.Constraint("DistanceX", 1, 3, 13, 3, 50.8),
    Sketcher.Constraint("DistanceX", -1, 1, 1, 3, 15.24),
    Sketcher.Constraint("DistanceX", -1, 1, 6, 3, 13.97),
    Sketcher.Constraint("DistanceY", 13, 3, -1, 1, 45.72),
    Sketcher.Constraint("DistanceY", 18, 3, -1, 1, 17.78),
])
pad5 = doc.addObject("PartDesign::Pad", "Pad004")
body.addObject(pad5)
pad5.Profile = sketch5
pad5.Length = 3

# Sketch on XZ plane
sketch6 = doc.addObject("Sketcher::SketchObject", "Sketch005")
body.addObject(sketch6)
sketch6.AttachmentSupport = (doc.XZ_Plane, [""])
sketch6.MapMode = "FlatFace"
sketch6.AttachmentOffset = App.Placement(V(0, 0, -1), App.Rotation())
sketch6.addGeometry([
    Part.Circle(V(-6.2, -51.1, 0), V(0, 0, 1), 1.6),
    Part.Circle(V(-6.2, -2.2, 0), V(0, 0, 1), 1.6),
], False)
sketch6.addConstraint([
    Sketcher.Constraint("Equal", 0, 1),
    Sketcher.Constraint("Vertical", 0, 3, 1, 3),
    Sketcher.Constraint("Diameter", 0, 3.2),
    Sketcher.Constraint("DistanceX", 0, 3, -1, 1, 6.21),
    Sketcher.Constraint("DistanceY", 0, 3, -1, 1, 51.13),
    Sketcher.Constraint("DistanceY", 1, 3, -1, 1, 2.21),
])
doc.recompute()
hole = doc.addObject("PartDesign::Hole", "Hole")
body.addObject(hole)
hole.Profile = sketch6
hole.ThreadType = "None"
hole.Diameter = 3.2
hole.DepthType = "ThroughAll"
hole.Reversed = True

doc.recompute()
